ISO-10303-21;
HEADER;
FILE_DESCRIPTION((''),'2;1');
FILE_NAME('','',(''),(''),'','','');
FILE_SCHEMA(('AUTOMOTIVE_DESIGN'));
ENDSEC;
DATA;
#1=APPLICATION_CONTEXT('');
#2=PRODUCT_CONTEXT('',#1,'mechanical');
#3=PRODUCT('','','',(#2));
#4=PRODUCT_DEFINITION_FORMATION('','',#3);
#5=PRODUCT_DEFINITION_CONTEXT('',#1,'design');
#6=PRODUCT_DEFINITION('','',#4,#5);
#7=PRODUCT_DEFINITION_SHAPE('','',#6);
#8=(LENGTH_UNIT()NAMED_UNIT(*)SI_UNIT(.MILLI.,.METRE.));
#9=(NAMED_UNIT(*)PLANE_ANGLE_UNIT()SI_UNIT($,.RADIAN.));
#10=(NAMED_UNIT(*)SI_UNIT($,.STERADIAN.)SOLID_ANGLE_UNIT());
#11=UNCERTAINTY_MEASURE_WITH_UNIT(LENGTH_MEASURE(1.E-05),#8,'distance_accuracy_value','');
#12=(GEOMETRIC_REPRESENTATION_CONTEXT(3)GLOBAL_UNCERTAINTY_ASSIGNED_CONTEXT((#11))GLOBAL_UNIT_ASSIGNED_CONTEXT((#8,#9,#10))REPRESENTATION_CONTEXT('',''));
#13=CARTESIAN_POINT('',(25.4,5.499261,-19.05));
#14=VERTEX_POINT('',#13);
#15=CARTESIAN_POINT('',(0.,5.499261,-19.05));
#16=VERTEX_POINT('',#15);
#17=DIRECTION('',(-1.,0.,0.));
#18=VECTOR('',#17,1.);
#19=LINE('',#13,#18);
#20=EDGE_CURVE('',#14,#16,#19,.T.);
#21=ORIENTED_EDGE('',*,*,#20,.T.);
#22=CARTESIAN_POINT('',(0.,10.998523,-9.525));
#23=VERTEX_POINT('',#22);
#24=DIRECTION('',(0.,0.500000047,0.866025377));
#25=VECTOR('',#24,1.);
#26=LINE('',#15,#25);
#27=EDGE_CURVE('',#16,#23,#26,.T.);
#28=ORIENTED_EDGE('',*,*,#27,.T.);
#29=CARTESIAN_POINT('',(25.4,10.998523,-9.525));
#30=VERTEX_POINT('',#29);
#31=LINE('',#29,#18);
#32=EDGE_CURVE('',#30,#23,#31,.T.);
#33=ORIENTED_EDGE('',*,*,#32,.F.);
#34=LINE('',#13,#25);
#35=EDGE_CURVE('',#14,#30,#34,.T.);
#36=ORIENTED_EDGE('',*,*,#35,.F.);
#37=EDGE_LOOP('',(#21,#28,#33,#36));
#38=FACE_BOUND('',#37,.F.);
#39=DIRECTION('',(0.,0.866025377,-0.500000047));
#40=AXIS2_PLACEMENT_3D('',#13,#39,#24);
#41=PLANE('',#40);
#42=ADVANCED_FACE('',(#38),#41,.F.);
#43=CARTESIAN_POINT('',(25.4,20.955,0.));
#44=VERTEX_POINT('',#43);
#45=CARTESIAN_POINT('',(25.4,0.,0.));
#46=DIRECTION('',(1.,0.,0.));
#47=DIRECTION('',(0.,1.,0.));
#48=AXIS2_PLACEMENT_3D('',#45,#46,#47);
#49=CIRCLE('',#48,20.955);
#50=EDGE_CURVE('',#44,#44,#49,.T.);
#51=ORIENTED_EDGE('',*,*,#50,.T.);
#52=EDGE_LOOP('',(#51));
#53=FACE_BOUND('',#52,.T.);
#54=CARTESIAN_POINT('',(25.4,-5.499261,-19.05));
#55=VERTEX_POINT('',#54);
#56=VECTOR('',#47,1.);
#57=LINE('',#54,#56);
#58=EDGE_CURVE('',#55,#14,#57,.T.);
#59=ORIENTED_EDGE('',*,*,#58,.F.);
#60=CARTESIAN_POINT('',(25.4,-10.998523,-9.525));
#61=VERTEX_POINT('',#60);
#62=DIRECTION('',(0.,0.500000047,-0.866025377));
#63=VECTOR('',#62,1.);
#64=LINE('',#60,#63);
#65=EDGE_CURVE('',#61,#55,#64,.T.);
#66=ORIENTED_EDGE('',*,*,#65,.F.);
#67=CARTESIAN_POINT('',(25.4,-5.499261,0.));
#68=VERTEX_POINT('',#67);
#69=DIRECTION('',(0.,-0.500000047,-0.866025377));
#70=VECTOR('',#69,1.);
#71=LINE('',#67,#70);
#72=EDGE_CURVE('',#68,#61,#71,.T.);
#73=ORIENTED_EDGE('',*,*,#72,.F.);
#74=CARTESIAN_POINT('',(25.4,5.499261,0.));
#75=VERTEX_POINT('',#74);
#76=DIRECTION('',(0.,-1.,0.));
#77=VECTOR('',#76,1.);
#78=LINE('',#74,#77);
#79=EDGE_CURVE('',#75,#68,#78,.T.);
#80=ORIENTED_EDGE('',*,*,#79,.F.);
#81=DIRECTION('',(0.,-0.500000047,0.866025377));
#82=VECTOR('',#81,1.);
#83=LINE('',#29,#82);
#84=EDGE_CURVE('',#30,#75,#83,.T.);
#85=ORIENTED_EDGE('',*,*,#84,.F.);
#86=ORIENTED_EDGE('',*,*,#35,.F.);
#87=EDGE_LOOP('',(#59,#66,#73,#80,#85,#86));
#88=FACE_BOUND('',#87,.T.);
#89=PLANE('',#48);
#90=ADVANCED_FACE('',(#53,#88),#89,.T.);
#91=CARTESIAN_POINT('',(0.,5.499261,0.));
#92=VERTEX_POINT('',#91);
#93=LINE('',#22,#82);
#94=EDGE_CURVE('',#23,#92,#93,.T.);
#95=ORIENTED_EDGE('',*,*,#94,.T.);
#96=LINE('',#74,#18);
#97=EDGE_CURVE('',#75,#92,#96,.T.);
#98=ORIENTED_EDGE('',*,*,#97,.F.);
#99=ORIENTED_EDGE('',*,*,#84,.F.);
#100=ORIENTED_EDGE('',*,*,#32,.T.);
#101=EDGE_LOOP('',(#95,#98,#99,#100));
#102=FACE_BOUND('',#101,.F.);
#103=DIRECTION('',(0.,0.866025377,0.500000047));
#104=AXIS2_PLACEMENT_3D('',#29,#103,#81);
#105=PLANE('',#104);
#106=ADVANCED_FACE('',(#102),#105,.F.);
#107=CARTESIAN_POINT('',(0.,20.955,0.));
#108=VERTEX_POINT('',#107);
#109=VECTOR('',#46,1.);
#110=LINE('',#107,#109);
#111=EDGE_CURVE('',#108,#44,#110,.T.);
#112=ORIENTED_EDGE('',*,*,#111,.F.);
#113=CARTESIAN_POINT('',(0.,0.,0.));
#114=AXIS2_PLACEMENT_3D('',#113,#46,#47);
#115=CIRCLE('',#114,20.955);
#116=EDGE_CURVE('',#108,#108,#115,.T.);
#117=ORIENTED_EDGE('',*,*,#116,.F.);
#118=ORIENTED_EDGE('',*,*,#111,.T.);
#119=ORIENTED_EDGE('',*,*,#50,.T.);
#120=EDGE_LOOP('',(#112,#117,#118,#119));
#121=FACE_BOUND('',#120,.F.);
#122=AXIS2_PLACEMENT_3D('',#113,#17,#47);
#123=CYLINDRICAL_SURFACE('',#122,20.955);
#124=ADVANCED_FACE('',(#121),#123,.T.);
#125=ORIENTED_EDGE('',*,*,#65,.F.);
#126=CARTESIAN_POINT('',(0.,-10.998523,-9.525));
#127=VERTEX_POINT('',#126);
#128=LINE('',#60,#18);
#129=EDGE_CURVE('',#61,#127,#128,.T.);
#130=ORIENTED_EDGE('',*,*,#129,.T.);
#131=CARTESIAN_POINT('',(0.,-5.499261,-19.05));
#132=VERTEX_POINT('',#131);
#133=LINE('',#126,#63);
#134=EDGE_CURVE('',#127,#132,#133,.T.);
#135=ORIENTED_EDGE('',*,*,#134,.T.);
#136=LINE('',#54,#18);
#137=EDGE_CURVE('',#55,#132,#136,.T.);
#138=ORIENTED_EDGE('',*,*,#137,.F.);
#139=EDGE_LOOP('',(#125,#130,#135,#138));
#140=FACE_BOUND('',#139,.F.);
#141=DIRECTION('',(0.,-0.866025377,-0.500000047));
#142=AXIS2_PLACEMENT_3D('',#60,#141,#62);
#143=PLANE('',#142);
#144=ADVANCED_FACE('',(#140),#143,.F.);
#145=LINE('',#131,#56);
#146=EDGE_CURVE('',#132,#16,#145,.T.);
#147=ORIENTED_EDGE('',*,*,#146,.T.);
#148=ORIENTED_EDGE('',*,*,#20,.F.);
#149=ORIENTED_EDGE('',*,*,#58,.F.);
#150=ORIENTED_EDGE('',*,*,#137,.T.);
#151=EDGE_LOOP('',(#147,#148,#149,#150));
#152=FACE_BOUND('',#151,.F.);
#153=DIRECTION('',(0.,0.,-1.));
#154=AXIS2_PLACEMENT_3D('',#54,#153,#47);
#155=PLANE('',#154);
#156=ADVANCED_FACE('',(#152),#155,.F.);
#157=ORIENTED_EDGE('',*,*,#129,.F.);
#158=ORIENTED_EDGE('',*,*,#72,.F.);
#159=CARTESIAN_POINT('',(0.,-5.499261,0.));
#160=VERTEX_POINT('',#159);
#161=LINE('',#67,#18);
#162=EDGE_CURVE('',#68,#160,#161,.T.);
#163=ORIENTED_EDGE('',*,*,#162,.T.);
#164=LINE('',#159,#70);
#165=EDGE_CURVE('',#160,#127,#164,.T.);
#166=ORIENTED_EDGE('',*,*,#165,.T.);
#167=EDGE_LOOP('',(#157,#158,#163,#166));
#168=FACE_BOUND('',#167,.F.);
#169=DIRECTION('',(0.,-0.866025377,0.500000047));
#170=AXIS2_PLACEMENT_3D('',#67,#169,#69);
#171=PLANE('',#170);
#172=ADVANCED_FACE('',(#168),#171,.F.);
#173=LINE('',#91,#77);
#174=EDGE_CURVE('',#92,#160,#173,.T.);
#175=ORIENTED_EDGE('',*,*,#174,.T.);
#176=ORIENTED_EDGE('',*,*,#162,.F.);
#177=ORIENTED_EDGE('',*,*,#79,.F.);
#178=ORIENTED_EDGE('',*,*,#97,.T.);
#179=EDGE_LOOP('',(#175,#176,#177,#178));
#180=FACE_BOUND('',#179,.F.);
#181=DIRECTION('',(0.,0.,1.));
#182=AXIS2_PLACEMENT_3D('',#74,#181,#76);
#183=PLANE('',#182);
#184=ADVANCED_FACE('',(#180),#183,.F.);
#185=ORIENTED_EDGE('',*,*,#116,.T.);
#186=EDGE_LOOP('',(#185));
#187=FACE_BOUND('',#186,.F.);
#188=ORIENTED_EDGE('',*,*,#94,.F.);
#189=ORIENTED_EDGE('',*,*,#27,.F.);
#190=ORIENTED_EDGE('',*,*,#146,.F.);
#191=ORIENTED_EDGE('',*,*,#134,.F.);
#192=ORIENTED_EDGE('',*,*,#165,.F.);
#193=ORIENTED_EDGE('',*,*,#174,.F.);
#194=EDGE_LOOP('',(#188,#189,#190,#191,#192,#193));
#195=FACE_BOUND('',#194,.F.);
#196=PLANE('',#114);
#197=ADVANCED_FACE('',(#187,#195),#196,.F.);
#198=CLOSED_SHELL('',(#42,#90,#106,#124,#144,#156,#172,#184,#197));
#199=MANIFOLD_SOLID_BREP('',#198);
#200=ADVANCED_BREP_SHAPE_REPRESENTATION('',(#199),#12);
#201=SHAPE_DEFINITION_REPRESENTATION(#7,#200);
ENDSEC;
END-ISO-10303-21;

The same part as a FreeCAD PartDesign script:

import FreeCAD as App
import Part
import Sketcher
from FreeCAD import Vector
Q = App.Units.Quantity

doc = App.newDocument("Part")
params = doc.addObject("Spreadsheet::Sheet", "Params")
for row, (alias, value) in enumerate([
    ("sketch1_diameter", "1.65 in"),
    ("pad1_length", "1 in"),
    ("pocket1_length", "1 in"),
], start=1):
    params.set(f"A{row}", alias)
    params.set(f"B{row}", "=" + value)
    params.setAlias(f"B{row}", alias)

body = doc.addObject("PartDesign::Body", "Body")

# Sketch on YZ plane
sketch1 = doc.addObject("Sketcher::SketchObject", "Sketch")
body.addObject(sketch1)
sketch1.AttachmentSupport = (doc.YZ_Plane, [""])
sketch1.MapMode = "FlatFace"
sketch1.addGeometry(Part.Circle(Vector(0, 0, 0), Vector(0, 0, 1), 21), False)
sketch1.addConstraint([
    Sketcher.Constraint("Coincident", 0, 3, -1, 1),
    Sketcher.Constraint("Diameter", 0, Q("1.65 in")),
])
sketch1.setExpression("Constraints[1]", "Params.sketch1_diameter")
pad1 = doc.addObject("PartDesign::Pad", "Pad")
body.addObject(pad1)
pad1.Profile = sketch1
pad1.setExpression("Length", "Params.pad1_length")

# Sketch on YZ plane
sketch2 = doc.addObject("Sketcher::SketchObject", "Sketch001")
body.addObject(sketch2)
sketch2.AttachmentSupport = (doc.YZ_Plane, [""])
sketch2.MapMode = "FlatFace"
sketch2.AttachmentOffset = App.Placement(Vector(0, 0, 1 * 25.4), App.Rotation())
sketch2.addGeometry([
    Part.LineSegment(Vector(5, 0, 0), Vector(-5, 0, 0)),  # 0
    Part.LineSegment(Vector(-5, 0, 0), Vector(-11, -10, 0)),  # 1
    Part.LineSegment(Vector(-11, -10, 0), Vector(-5, -19, 0)),  # 2
    Part.LineSegment(Vector(-5, -19, 0), Vector(5, -19, 0)),  # 3
    Part.LineSegment(Vector(5, -19, 0), Vector(11, -10, 0)),  # 4
    Part.LineSegment(Vector(11, -10, 0), Vector(5, 0, 0)),  # 5
], False)
sketch2.addConstraint([
    Sketcher.Constraint("Coincident", 0, 2, 1, 1),
    Sketcher.Constraint("Coincident", 1, 2, 2, 1),
    Sketcher.Constraint("Coincident", 2, 2, 3, 1),
    Sketcher.Constraint("Coincident", 3, 2, 4, 1),
    Sketcher.Constraint("Coincident", 4, 2, 5, 1),
    Sketcher.Constraint("Coincident", 5, 2, 0, 1),
    Sketcher.Constraint("Horizontal", 0),
    Sketcher.Constraint("Horizontal", 3),
    Sketcher.Constraint("Symmetric", 0, 2, 5, 2, -1, 1),
    Sketcher.Constraint("Symmetric", 1, 2, 4, 2, -2),
    Sketcher.Constraint("Parallel", 1, 4),
    Sketcher.Constraint("Parallel", 2, 5),
    Sketcher.Constraint("Vertical", 0, 2, 2, 2),
    Sketcher.Constraint("Angle", 1, Q("-120.000003 deg")),
    Sketcher.Constraint("DistanceY", 2, 2, -1, 1, Q("0.75 in")),
    Sketcher.Constraint("DistanceX", 0, 2, 0, 1, Q("10.998522 mm")),
])
pocket1 = doc.addObject("PartDesign::Pocket", "Pocket")
body.addObject(pocket1)
pocket1.Profile = sketch2
pocket1.setExpression("Length", "Params.pocket1_length")

doc.recompute()
